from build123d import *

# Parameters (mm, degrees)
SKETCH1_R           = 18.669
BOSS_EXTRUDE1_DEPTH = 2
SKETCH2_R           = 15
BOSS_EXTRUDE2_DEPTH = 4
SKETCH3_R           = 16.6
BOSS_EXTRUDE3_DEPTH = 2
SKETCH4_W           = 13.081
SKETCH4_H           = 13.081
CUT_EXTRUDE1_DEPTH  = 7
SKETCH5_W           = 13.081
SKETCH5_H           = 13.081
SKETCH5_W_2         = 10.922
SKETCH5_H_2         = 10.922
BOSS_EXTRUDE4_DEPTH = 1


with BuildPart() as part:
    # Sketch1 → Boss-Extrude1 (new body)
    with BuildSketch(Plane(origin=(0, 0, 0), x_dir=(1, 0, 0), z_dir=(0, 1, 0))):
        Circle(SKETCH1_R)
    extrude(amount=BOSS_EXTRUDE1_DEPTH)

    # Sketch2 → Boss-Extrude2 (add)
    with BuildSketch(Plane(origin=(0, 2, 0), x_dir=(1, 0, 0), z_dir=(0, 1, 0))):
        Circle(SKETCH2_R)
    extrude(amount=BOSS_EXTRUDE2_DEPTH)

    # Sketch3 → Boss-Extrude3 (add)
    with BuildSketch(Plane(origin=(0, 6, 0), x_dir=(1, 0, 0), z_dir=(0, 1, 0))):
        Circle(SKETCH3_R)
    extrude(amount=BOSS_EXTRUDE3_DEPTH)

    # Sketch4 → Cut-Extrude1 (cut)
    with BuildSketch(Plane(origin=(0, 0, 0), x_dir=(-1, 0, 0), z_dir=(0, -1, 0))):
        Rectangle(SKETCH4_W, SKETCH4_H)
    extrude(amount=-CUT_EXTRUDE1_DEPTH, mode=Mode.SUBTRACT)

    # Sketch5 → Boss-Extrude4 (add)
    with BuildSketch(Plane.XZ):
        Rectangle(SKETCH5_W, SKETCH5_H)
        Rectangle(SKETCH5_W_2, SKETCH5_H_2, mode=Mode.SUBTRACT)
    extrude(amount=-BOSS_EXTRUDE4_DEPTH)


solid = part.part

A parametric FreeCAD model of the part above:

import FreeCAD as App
import Part
import Sketcher
from FreeCAD import Vector


def add_polygon(sketch, points):
    """Adds a closed chain of lines whose ends are joined by coincident constraints."""
    first, n = sketch.GeometryCount, len(points)
    for a, b in zip(points, points[1:] + points[:1]):
        sketch.addGeometry(Part.LineSegment(App.Vector(*a, 0), App.Vector(*b, 0)), False)
    for i in range(n):
        sketch.addConstraint(Sketcher.Constraint("Coincident", first + i, 2, first + (i + 1) % n, 1))

doc = App.newDocument("Part")
body = doc.addObject("PartDesign::Body", "Body")

# Sketch on XZ plane
sketch1 = body.newObject("Sketcher::SketchObject", "Sketch")
sketch1.AttachmentSupport = (doc.getObject("XZ_Plane"), [""])
sketch1.MapMode = "FlatFace"
sketch1.addGeometry(Part.Circle(Vector(0, 0, 0), Vector(0, 0, 1), 19), False)
sketch1.addConstraint(Sketcher.Constraint("Coincident", 0, 3, -1, 1))
sketch1.addConstraint(Sketcher.Constraint("Diameter", 0, 37.338))
pad1 = body.newObject("PartDesign::Pad", "Pad")
pad1.Profile = sketch1
pad1.Length = 2
pad1.Reversed = True

# Sketch on XZ plane
sketch2 = body.newObject("Sketcher::SketchObject", "Sketch001")
sketch2.AttachmentSupport = (doc.getObject("XZ_Plane"), [""])
sketch2.MapMode = "FlatFace"
sketch2.AttachmentOffset = App.Placement(Vector(0, 0, -2), App.Rotation())
sketch2.addGeometry(Part.Circle(Vector(0, 0, 0), Vector(0, 0, 1), 15), False)
sketch2.addConstraint(Sketcher.Constraint("Coincident", 0, 3, -1, 1))
sketch2.addConstraint(Sketcher.Constraint("Diameter", 0, 30.0))
pad2 = body.newObject("PartDesign::Pad", "Pad001")
pad2.Profile = sketch2
pad2.Length = 4
pad2.Reversed = True

# Sketch on XZ plane
sketch3 = body.newObject("Sketcher::SketchObject", "Sketch002")
sketch3.AttachmentSupport = (doc.getObject("XZ_Plane"), [""])
sketch3.MapMode = "FlatFace"
sketch3.AttachmentOffset = App.Placement(Vector(0, 0, -6), App.Rotation())
sketch3.addGeometry(Part.Circle(Vector(0, 0, 0), Vector(0, 0, 1), 17), False)
sketch3.addConstraint(Sketcher.Constraint("Coincident", 0, 3, -1, 1))
sketch3.addConstraint(Sketcher.Constraint("Diameter", 0, 33.2))
pad3 = body.newObject("PartDesign::Pad", "Pad002")
pad3.Profile = sketch3
pad3.Length = 2
pad3.Reversed = True

# Sketch on XZ plane
sketch4 = body.newObject("Sketcher::SketchObject", "Sketch003")
sketch4.AttachmentSupport = (doc.getObject("XZ_Plane"), [""])
sketch4.MapMode = "FlatFace"
add_polygon(sketch4, [(7, -7), (7, 7), (-7, 7), (-7, -7)])  # lines 0-3
sketch4.addConstraint(Sketcher.Constraint("Vertical", 0))
sketch4.addConstraint(Sketcher.Constraint("Horizontal", 1))
sketch4.addConstraint(Sketcher.Constraint("Vertical", 2))
sketch4.addConstraint(Sketcher.Constraint("Horizontal", 3))
sketch4.addConstraint(Sketcher.Constraint("Symmetric", 0, 2, 2, 2, -1, 1))
sketch4.addConstraint(Sketcher.Constraint("Equal", 3, 0))
sketch4.addConstraint(Sketcher.Constraint("DistanceX", 1, 2, 1, 1, 13.081))
pocket1 = body.newObject("PartDesign::Pocket", "Pocket")
pocket1.Profile = sketch4
pocket1.Length = 7

# Sketch on XZ plane
sketch5 = body.newObject("Sketcher::SketchObject", "Sketch004")
sketch5.AttachmentSupport = (doc.getObject("XZ_Plane"), [""])
sketch5.MapMode = "FlatFace"
add_polygon(sketch5, [(-7, 7), (-7, -7), (7, -7), (7, 7)])  # lines 0-3
add_polygon(sketch5, [(5, -5), (-5, -5), (-5, 5), (5, 5)])  # lines 4-7
sketch5.addConstraint(Sketcher.Constraint("Vertical", 0))
sketch5.addConstraint(Sketcher.Constraint("Horizontal", 1))
sketch5.addConstraint(Sketcher.Constraint("Vertical", 2))
sketch5.addConstraint(Sketcher.Constraint("Horizontal", 3))
sketch5.addConstraint(Sketcher.Constraint("Horizontal", 4))
sketch5.addConstraint(Sketcher.Constraint("Vertical", 5))
sketch5.addConstraint(Sketcher.Constraint("Horizontal", 6))
sketch5.addConstraint(Sketcher.Constraint("Vertical", 7))
sketch5.addConstraint(Sketcher.Constraint("Symmetric", 0, 2, 2, 2, -1, 1))
sketch5.addConstraint(Sketcher.Constraint("Symmetric", 4, 2, 6, 2, -1, 1))
sketch5.addConstraint(Sketcher.Constraint("Equal", 3, 0))
sketch5.addConstraint(Sketcher.Constraint("Equal", 6, 5))
sketch5.addConstraint(Sketcher.Constraint("DistanceX", 1, 1, 1, 2, 13.081))
sketch5.addConstraint(Sketcher.Constraint("DistanceX", 4, 2, 4, 1, 10.922))
pad4 = body.newObject("PartDesign::Pad", "Pad003")
pad4.Profile = sketch5
pad4.Length = 1
pad4.Reversed = True

doc.recompute()
